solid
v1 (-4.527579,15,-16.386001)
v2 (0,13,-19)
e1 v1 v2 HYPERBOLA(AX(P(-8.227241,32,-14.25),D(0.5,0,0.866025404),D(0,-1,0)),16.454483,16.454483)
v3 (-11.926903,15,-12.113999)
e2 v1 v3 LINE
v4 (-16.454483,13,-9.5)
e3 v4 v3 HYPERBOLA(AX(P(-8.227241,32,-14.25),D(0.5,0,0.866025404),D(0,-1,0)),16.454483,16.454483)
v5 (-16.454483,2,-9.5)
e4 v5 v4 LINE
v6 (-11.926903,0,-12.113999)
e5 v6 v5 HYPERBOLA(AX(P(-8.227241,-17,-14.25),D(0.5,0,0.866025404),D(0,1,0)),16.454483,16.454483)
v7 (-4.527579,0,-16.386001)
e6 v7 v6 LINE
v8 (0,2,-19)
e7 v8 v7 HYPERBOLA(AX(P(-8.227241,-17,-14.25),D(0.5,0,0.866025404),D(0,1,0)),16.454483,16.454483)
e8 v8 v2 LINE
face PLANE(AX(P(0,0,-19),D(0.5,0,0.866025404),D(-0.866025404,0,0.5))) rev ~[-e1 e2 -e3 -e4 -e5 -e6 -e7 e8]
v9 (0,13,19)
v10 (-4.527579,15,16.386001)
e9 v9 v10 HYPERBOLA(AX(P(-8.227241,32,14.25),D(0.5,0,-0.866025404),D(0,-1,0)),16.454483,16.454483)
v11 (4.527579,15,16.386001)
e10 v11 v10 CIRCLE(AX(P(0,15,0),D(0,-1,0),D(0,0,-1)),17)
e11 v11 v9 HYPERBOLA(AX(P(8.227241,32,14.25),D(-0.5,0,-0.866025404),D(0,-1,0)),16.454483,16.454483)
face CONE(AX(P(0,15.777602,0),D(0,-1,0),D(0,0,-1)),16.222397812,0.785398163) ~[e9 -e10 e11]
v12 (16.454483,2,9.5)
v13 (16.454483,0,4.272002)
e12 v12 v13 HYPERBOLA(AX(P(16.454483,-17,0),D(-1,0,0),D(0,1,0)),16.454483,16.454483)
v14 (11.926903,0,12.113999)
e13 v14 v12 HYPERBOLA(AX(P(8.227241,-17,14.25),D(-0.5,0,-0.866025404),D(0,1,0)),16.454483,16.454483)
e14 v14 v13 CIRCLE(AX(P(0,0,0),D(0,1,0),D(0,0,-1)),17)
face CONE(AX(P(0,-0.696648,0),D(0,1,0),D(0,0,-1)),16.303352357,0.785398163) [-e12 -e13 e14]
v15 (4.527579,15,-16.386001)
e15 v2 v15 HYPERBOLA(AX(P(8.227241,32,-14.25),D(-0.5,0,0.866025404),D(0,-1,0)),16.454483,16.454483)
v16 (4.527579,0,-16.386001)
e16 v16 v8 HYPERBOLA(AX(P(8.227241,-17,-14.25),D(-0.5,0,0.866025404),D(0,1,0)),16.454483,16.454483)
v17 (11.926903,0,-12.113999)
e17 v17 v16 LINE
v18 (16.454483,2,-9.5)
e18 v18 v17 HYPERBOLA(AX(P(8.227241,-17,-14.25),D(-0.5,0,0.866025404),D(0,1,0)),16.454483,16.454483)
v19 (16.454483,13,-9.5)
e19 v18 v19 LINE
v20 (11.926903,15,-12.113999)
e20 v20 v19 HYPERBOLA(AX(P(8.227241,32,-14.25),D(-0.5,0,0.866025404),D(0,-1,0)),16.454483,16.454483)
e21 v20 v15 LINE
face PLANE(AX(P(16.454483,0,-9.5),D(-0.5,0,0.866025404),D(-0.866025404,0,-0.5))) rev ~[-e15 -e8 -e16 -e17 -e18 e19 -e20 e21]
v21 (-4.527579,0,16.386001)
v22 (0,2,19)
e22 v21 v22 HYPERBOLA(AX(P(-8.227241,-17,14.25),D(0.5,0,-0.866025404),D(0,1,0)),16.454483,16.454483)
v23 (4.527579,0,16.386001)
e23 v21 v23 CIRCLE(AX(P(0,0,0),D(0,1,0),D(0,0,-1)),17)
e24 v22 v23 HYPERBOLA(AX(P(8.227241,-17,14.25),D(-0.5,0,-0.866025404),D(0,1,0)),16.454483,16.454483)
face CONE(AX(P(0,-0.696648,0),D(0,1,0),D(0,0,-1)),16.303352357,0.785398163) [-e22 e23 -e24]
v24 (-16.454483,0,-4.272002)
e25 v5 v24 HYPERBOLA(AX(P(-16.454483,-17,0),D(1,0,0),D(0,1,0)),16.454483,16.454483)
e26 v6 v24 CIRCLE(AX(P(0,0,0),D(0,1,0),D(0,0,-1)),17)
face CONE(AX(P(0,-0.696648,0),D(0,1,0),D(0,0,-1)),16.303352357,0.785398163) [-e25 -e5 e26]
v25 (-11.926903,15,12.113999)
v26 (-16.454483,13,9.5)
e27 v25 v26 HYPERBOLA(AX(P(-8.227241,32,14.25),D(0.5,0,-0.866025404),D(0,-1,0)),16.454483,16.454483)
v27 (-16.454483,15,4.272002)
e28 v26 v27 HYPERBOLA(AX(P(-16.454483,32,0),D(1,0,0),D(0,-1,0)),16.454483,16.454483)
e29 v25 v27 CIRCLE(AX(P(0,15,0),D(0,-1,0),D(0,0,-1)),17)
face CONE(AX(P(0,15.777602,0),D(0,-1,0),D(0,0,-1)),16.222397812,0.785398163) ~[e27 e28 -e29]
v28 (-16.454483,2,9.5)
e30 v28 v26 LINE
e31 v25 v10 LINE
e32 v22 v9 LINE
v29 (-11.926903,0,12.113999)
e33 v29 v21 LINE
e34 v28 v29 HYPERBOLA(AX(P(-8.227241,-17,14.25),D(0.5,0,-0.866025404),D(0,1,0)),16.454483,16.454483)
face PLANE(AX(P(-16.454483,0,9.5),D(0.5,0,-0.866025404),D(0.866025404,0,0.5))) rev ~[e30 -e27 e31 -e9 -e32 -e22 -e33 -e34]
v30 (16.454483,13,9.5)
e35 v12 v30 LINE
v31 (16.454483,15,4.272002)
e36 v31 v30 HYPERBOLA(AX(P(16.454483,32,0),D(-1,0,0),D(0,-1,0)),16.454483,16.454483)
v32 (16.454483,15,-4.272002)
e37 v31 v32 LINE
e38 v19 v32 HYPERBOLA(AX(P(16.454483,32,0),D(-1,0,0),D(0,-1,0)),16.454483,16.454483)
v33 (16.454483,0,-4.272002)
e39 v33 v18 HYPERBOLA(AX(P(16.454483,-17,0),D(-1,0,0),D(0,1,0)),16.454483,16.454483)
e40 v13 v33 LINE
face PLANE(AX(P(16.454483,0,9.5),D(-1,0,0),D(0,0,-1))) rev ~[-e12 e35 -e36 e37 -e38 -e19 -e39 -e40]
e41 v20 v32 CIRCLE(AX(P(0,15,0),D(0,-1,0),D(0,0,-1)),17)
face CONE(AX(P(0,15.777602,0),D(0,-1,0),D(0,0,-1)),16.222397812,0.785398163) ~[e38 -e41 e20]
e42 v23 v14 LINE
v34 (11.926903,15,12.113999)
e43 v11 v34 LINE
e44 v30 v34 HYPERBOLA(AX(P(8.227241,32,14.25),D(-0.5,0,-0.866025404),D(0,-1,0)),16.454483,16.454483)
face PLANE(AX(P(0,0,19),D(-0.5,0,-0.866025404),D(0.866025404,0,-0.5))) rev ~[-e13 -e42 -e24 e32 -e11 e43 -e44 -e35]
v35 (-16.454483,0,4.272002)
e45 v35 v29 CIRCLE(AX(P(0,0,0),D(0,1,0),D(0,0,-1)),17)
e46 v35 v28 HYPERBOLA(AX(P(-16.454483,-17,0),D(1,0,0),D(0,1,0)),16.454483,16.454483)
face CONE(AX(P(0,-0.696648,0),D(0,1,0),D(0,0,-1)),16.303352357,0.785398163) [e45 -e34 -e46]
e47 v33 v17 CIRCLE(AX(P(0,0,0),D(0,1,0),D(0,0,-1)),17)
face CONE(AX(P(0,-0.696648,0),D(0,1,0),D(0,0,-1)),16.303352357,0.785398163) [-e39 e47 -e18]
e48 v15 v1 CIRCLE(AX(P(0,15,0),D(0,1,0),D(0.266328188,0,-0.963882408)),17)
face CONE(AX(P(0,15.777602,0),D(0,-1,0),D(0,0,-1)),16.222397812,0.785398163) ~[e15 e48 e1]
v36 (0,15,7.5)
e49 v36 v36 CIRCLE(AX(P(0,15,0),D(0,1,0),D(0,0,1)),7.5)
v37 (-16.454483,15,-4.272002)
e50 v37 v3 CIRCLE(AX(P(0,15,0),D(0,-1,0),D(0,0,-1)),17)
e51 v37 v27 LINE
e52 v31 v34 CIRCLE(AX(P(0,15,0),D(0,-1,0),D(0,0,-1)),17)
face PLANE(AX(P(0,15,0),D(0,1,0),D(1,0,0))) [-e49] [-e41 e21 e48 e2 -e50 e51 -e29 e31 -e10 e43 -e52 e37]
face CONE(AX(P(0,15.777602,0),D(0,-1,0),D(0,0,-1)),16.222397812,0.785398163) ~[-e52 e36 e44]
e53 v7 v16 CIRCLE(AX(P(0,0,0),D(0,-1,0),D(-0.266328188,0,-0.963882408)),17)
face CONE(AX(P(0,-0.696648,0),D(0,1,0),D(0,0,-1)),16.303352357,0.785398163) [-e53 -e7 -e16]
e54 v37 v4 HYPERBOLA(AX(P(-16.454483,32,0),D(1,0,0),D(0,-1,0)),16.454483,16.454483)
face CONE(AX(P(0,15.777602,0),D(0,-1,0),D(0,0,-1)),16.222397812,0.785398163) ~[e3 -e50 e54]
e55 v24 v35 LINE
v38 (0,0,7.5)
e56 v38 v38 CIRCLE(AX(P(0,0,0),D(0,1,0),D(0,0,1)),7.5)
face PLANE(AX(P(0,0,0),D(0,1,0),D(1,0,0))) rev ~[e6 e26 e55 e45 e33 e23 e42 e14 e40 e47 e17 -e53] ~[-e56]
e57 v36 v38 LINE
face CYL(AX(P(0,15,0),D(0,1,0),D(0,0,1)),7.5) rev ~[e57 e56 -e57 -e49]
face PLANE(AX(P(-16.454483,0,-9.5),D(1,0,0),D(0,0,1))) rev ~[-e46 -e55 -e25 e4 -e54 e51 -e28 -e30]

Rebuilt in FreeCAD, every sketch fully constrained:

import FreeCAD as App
import Part
import Sketcher

V = App.Vector
Q = App.Units.Quantity

doc = App.newDocument("Part")
body = doc.addObject("PartDesign::Body", "Body")

sketch1 = doc.addObject("Sketcher::SketchObject", "Sketch")
body.addObject(sketch1)
sketch1.AttachmentSupport = (doc.XZ_Plane, [""])
sketch1.MapMode = "FlatFace"
sketch1.addGeometry(Part.LineSegment(V(0, 19, 0), V(16.454483, 9.5, 0)), False)
sketch1.addGeometry(Part.LineSegment(V(16.454483, 9.5, 0), V(16.454483, -9.5, 0)), False)
sketch1.addGeometry(Part.LineSegment(V(16.454483, -9.5, 0), V(0, -19, 0)), False)
sketch1.addGeometry(Part.LineSegment(V(0, -19, 0), V(-16.454483, -9.5, 0)), False)
sketch1.addGeometry(Part.LineSegment(V(-16.454483, -9.5, 0), V(-16.454483, 9.5, 0)), False)
sketch1.addGeometry(Part.LineSegment(V(-16.454483, 9.5, 0), V(0, 19, 0)), False)
sketch1.addConstraint(Sketcher.Constraint("Coincident", 0, 2, 1, 1))
sketch1.addConstraint(Sketcher.Constraint("Coincident", 1, 2, 2, 1))
sketch1.addConstraint(Sketcher.Constraint("Coincident", 2, 2, 3, 1))
sketch1.addConstraint(Sketcher.Constraint("Coincident", 3, 2, 4, 1))
sketch1.addConstraint(Sketcher.Constraint("Coincident", 4, 2, 5, 1))
sketch1.addConstraint(Sketcher.Constraint("Coincident", 5, 2, 0, 1))
sketch1.addConstraint(Sketcher.Constraint("Vertical", 1))
sketch1.addConstraint(Sketcher.Constraint("Vertical", 4))
sketch1.addConstraint(Sketcher.Constraint("Symmetric", 0, 2, 3, 2, -1, 1))
sketch1.addConstraint(Sketcher.Constraint("Symmetric", 2, 2, 5, 2, -1, 1))
sketch1.addConstraint(Sketcher.Constraint("PointOnObject", 2, 2, -2))
sketch1.addConstraint(Sketcher.Constraint("Parallel", 2, 5))
sketch1.addConstraint(Sketcher.Constraint("Horizontal", 1, 2, 3, 2))
sketch1.addConstraint(Sketcher.Constraint("DistanceY", 1, 2, 1, 1, Q("19 mm")))
sketch1.addConstraint(Sketcher.Constraint("Angle", 0, Q("-30 deg")))
sketch1.addConstraint(Sketcher.Constraint("Distance", 0, Q("19 mm")))
pad1 = doc.addObject("PartDesign::Pad", "Pad")
body.addObject(pad1)
pad1.Profile = sketch1
pad1.Length = 15
pad1.Reversed = True

sketch2 = doc.addObject("Sketcher::SketchObject", "Sketch001")
body.addObject(sketch2)
sketch2.AttachmentSupport = (doc.XZ_Plane, [""])
sketch2.MapMode = "FlatFace"
sketch2.AttachmentOffset = App.Placement(V(0, 0, -15), App.Rotation())
sketch2.addGeometry(Part.Circle(V(0, 0, 0), V(0, 0, 1), 7.5), False)
sketch2.addConstraint(Sketcher.Constraint("Coincident", 0, 3, -1, 1))
sketch2.addConstraint(Sketcher.Constraint("Diameter", 0, Q("15 mm")))
pocket1 = doc.addObject("PartDesign::Pocket", "Pocket")
body.addObject(pocket1)
pocket1.Profile = sketch2
pocket1.Type = "ThroughAll"
pocket1.Reversed = True

sketch3 = doc.addObject("Sketcher::SketchObject", "Sketch002")
body.addObject(sketch3)
sketch3.AttachmentSupport = (doc.YZ_Plane, [""])
sketch3.MapMode = "FlatFace"
sketch3.addGeometry(Part.LineSegment(V(15.777602, -16.222398, 0), V(10.777602, -21.222398, 0)), False)
sketch3.addGeometry(Part.LineSegment(V(10.777602, -21.222398, 0), V(15.777602, -21.222398, 0)), False)
sketch3.addGeometry(Part.LineSegment(V(15.777602, -21.222398, 0), V(15.777602, -16.222398, 0)), False)
sketch3.addConstraint(Sketcher.Constraint("Coincident", 0, 2, 1, 1))
sketch3.addConstraint(Sketcher.Constraint("Coincident", 1, 2, 2, 1))
sketch3.addConstraint(Sketcher.Constraint("Coincident", 2, 2, 0, 1))
sketch3.addConstraint(Sketcher.Constraint("Horizontal", 1))
sketch3.addConstraint(Sketcher.Constraint("Vertical", 2))
sketch3.addConstraint(Sketcher.Constraint("Equal", 1, 2))
sketch3.addConstraint(Sketcher.Constraint("DistanceX", 1, 1, 1, 2, Q("5 mm")))
sketch3.addConstraint(Sketcher.Constraint("DistanceX", -1, 1, 0, 2, Q("10.777602 mm")))
sketch3.addConstraint(Sketcher.Constraint("DistanceY", 0, 2, -1, 1, Q("21.222398 mm")))
groove = doc.addObject("PartDesign::Groove", "Groove")
body.addObject(groove)
groove.Profile = sketch3
groove.ReferenceAxis = (sketch3, ["H_Axis"])
groove.Angle = 360

sketch4 = doc.addObject("Sketcher::SketchObject", "Sketch003")
body.addObject(sketch4)
sketch4.AttachmentSupport = (doc.YZ_Plane, [""])
sketch4.MapMode = "FlatFace"
sketch4.addGeometry(Part.LineSegment(V(4.303352, -21.303352, 0), V(-0.696648, -16.303352, 0)), False)
sketch4.addGeometry(Part.LineSegment(V(-0.696648, -16.303352, 0), V(-0.696648, -21.303352, 0)), False)
sketch4.addGeometry(Part.LineSegment(V(-0.696648, -21.303352, 0), V(4.303352, -21.303352, 0)), False)
sketch4.addConstraint(Sketcher.Constraint("Coincident", 0, 2, 1, 1))
sketch4.addConstraint(Sketcher.Constraint("Coincident", 1, 2, 2, 1))
sketch4.addConstraint(Sketcher.Constraint("Coincident", 2, 2, 0, 1))
sketch4.addConstraint(Sketcher.Constraint("Vertical", 1))
sketch4.addConstraint(Sketcher.Constraint("Horizontal", 2))
sketch4.addConstraint(Sketcher.Constraint("Equal", 2, 1))
sketch4.addConstraint(Sketcher.Constraint("DistanceX", 2, 1, 2, 2, Q("5 mm")))
sketch4.addConstraint(Sketcher.Constraint("DistanceX", 0, 2, -1, 1, Q("0.696648 mm")))
sketch4.addConstraint(Sketcher.Constraint("DistanceY", 0, 2, -1, 1, Q("16.303352 mm")))
groove2 = doc.addObject("PartDesign::Groove", "Groove001")
body.addObject(groove2)
groove2.Profile = sketch4
groove2.ReferenceAxis = (sketch4, ["H_Axis"])
groove2.Angle = 360

doc.recompute()
